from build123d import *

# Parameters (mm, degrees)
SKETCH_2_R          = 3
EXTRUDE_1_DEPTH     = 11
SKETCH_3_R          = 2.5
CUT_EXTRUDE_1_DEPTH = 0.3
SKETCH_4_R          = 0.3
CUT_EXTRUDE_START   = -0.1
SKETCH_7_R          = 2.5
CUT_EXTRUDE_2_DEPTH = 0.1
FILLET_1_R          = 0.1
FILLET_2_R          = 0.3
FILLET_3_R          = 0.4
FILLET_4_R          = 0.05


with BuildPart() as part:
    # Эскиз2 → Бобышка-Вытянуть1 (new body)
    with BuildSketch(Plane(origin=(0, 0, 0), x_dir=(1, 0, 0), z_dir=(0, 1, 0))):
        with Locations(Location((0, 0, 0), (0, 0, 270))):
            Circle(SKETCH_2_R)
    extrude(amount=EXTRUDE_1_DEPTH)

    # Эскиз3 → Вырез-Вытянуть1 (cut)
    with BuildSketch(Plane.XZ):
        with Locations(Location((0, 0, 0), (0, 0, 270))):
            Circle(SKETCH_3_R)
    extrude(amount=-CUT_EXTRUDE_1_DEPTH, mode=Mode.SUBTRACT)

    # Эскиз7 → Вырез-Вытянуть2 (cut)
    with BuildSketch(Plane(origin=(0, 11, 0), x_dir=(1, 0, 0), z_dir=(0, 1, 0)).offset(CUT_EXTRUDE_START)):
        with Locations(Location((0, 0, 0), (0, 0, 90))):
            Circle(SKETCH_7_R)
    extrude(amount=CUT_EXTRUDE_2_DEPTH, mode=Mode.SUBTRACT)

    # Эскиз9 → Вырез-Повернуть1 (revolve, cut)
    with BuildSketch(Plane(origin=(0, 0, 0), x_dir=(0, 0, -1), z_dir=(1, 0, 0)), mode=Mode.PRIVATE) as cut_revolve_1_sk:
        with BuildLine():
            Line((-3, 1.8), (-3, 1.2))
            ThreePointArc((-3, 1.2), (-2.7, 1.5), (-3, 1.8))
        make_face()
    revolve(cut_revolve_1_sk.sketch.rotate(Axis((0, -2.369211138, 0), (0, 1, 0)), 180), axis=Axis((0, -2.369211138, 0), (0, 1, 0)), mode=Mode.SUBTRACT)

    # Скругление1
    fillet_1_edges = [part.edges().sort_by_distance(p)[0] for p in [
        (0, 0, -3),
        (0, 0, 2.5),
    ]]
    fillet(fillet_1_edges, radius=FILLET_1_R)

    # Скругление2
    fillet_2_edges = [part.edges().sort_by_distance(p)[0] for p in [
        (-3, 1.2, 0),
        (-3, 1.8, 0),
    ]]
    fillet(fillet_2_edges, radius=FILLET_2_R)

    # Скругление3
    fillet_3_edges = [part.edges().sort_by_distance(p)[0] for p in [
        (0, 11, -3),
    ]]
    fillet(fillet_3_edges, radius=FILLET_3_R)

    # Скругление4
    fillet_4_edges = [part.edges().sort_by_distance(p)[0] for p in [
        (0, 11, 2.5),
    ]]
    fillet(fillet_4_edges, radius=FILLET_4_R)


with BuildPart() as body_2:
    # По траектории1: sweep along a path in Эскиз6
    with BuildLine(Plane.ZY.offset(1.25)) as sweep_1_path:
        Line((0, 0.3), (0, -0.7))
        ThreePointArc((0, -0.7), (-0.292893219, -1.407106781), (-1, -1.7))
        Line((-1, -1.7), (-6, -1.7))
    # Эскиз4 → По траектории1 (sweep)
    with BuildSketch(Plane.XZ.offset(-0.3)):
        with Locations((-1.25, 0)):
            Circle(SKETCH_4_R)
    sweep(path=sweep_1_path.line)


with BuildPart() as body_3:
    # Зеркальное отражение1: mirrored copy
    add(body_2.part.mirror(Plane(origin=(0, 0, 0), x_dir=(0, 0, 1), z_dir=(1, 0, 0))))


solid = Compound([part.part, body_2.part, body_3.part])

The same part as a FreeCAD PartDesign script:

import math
import FreeCAD as App
import Part
import Sketcher

V = App.Vector


def edges_at(feature, points):
    """Names of the edges that pass closest to the given points."""
    edges = feature.Shape.Edges
    near = lambda p: min(range(len(edges)), key=lambda i: edges[i].distToShape(Part.Vertex(*p))[0])
    return sorted({f"Edge{near(p) + 1}" for p in points})

doc = App.newDocument("Part")
body = doc.addObject("PartDesign::Body", "Body")

sketch1 = body.newObject("Sketcher::SketchObject", "Sketch")
sketch1.AttachmentSupport = (doc.getObject("XZ_Plane"), [""])
sketch1.MapMode = "FlatFace"
sketch1.addGeometry(Part.Circle(V(0, 0, 0), V(0, 0, 1), 3), False)
sketch1.addConstraint([
    Sketcher.Constraint("Coincident", 0, 3, -1, 1),
    Sketcher.Constraint("Diameter", 0, 6.0),
])
pad1 = body.newObject("PartDesign::Pad", "Pad")
pad1.Profile = sketch1
pad1.Length = 11
pad1.Reversed = True

sketch2 = body.newObject("Sketcher::SketchObject", "Sketch001")
sketch2.AttachmentSupport = (doc.getObject("XZ_Plane"), [""])
sketch2.MapMode = "FlatFace"
sketch2.addGeometry(Part.Circle(V(0, 0, 0), V(0, 0, 1), 2.5), False)
sketch2.addConstraint([
    Sketcher.Constraint("Coincident", 0, 3, -1, 1),
    Sketcher.Constraint("Diameter", 0, 5.0),
])
pocket1 = body.newObject("PartDesign::Pocket", "Pocket")
pocket1.Profile = sketch2
pocket1.Length = 0.3

sketch3 = body.newObject("Sketcher::SketchObject", "Sketch002")
sketch3.AttachmentSupport = (doc.getObject("XZ_Plane"), [""])
sketch3.MapMode = "FlatFace"
sketch3.AttachmentOffset = App.Placement(V(0, 0, -10.9), App.Rotation())
sketch3.addGeometry(Part.Circle(V(0, 0, 0), V(0, 0, 1), 2.5), False)
sketch3.addConstraint([
    Sketcher.Constraint("Coincident", 0, 3, -1, 1),
    Sketcher.Constraint("Diameter", 0, 5.0),
])
pocket2 = body.newObject("PartDesign::Pocket", "Pocket001")
pocket2.Profile = sketch3
pocket2.Length = 0.1

sketch4 = body.newObject("Sketcher::SketchObject", "Sketch003")
sketch4.AttachmentSupport = (doc.getObject("YZ_Plane"), [""])
sketch4.MapMode = "FlatFace"
sketch4.addGeometry([
    Part.LineSegment(V(1.8, 3, 0), V(1.2, 3, 0)),
    Part.ArcOfCircle(Part.Circle(V(1.5, 3, 0), V(0, 0, 1), 0.3), math.radians(180), math.radians(360)),
], False)
sketch4.addConstraint([
    Sketcher.Constraint("Coincident", 0, 1, 1, 2),
    Sketcher.Constraint("Coincident", 1, 1, 0, 2),
    Sketcher.Constraint("Horizontal", 0),
    Sketcher.Constraint("Horizontal", 1, 3, 0, 1),
    Sketcher.Constraint("Radius", 1, 0.3),
    Sketcher.Constraint("DistanceY", -1, 1, 1, 3, 3.0),
    Sketcher.Constraint("DistanceX", -1, 1, 1, 3, 1.5),
])
groove = body.newObject("PartDesign::Groove", "Groove")
groove.Profile = sketch4
groove.ReferenceAxis = (sketch4, ["H_Axis"])
groove.Angle = 360
doc.recompute()

fillet = body.newObject("PartDesign::Fillet", "Fillet")
fillet.Base = (groove, edges_at(groove, [(0, 0, -3), (0, 0, 2.5)]))
fillet.Radius = 0.1
doc.recompute()

fillet2 = body.newObject("PartDesign::Fillet", "Fillet001")
fillet2.Base = (fillet, edges_at(fillet, [(-3, 1.2, 0), (-3, 1.8, 0)]))
fillet2.Radius = 0.3
doc.recompute()

fillet3 = body.newObject("PartDesign::Fillet", "Fillet002")
fillet3.Base = (fillet2, edges_at(fillet2, [(0, 11, -3)]))
fillet3.Radius = 0.4
doc.recompute()

fillet4 = body.newObject("PartDesign::Fillet", "Fillet003")
fillet4.Base = (fillet3, edges_at(fillet3, [(0, 11, 2.5)]))
fillet4.Radius = 0.05
body2 = doc.addObject("PartDesign::Body", "Body001")

sketch5 = body2.newObject("Sketcher::SketchObject", "Sketch004")
sketch5.AttachmentSupport = (doc.getObject("XZ_Plane001"), [""])
sketch5.MapMode = "FlatFace"
sketch5.AttachmentOffset = App.Placement(V(0, 0, -0.3), App.Rotation())
sketch5.addGeometry(Part.Circle(V(-1.25, 0, 0), V(0, 0, 1), 0.3), False)
sketch5.addConstraint([
    Sketcher.Constraint("PointOnObject", 0, 3, -1),
    Sketcher.Constraint("Diameter", 0, 0.6),
    Sketcher.Constraint("DistanceX", 0, 3, -1, 1, 1.25),
])

sketch6 = body2.newObject("Sketcher::SketchObject", "Sketch005")
sketch6.AttachmentSupport = (doc.getObject("YZ_Plane001"), [""])
sketch6.MapMode = "FlatFace"
sketch6.AttachmentOffset = App.Placement(V(0, 0, -1.25), App.Rotation())
sketch6.addGeometry([
    Part.LineSegment(V(0.3, 0, 0), V(-0.7, 0, 0)),
    Part.ArcOfCircle(Part.Circle(V(-0.7, -1, 0), V(0, 0, 1), 1), math.radians(90), math.radians(180)),
    Part.LineSegment(V(-1.7, -1, 0), V(-1.7, -6, 0)),
], False)
sketch6.addConstraint([
    Sketcher.Constraint("Tangent", 0, 2, 1, 1),
    Sketcher.Constraint("Tangent", 1, 2, 2, 1),
    Sketcher.Constraint("Horizontal", 0),
    Sketcher.Constraint("Vertical", 2),
    Sketcher.Constraint("PointOnObject", 0, 1, -1),
    Sketcher.Constraint("Radius", 1, 1.0),
    Sketcher.Constraint("DistanceX", 0, 2, 0, 1, 1.0),
    Sketcher.Constraint("DistanceY", 2, 2, 2, 1, 5.0),
    Sketcher.Constraint("DistanceX", 1, 3, -1, 1, 0.7),
])
doc.recompute()

additivepipe = body2.newObject("PartDesign::AdditivePipe", "AdditivePipe")
additivepipe.Profile = sketch5
additivepipe.Spine = (sketch6, ["Edge1", "Edge2", "Edge3"])
body3 = doc.addObject("PartDesign::Body", "Body002")
doc.recompute()

mirroring = doc.addObject("Part::Mirroring", "Mirroring")
mirroring.Source = body2
mirroring.Base = V(0, 0, 0)
mirroring.Normal = V(1, 0, 0)
body3.BaseFeature = mirroring
doc.recompute()
mirroring.Visibility = False

doc.recompute()
